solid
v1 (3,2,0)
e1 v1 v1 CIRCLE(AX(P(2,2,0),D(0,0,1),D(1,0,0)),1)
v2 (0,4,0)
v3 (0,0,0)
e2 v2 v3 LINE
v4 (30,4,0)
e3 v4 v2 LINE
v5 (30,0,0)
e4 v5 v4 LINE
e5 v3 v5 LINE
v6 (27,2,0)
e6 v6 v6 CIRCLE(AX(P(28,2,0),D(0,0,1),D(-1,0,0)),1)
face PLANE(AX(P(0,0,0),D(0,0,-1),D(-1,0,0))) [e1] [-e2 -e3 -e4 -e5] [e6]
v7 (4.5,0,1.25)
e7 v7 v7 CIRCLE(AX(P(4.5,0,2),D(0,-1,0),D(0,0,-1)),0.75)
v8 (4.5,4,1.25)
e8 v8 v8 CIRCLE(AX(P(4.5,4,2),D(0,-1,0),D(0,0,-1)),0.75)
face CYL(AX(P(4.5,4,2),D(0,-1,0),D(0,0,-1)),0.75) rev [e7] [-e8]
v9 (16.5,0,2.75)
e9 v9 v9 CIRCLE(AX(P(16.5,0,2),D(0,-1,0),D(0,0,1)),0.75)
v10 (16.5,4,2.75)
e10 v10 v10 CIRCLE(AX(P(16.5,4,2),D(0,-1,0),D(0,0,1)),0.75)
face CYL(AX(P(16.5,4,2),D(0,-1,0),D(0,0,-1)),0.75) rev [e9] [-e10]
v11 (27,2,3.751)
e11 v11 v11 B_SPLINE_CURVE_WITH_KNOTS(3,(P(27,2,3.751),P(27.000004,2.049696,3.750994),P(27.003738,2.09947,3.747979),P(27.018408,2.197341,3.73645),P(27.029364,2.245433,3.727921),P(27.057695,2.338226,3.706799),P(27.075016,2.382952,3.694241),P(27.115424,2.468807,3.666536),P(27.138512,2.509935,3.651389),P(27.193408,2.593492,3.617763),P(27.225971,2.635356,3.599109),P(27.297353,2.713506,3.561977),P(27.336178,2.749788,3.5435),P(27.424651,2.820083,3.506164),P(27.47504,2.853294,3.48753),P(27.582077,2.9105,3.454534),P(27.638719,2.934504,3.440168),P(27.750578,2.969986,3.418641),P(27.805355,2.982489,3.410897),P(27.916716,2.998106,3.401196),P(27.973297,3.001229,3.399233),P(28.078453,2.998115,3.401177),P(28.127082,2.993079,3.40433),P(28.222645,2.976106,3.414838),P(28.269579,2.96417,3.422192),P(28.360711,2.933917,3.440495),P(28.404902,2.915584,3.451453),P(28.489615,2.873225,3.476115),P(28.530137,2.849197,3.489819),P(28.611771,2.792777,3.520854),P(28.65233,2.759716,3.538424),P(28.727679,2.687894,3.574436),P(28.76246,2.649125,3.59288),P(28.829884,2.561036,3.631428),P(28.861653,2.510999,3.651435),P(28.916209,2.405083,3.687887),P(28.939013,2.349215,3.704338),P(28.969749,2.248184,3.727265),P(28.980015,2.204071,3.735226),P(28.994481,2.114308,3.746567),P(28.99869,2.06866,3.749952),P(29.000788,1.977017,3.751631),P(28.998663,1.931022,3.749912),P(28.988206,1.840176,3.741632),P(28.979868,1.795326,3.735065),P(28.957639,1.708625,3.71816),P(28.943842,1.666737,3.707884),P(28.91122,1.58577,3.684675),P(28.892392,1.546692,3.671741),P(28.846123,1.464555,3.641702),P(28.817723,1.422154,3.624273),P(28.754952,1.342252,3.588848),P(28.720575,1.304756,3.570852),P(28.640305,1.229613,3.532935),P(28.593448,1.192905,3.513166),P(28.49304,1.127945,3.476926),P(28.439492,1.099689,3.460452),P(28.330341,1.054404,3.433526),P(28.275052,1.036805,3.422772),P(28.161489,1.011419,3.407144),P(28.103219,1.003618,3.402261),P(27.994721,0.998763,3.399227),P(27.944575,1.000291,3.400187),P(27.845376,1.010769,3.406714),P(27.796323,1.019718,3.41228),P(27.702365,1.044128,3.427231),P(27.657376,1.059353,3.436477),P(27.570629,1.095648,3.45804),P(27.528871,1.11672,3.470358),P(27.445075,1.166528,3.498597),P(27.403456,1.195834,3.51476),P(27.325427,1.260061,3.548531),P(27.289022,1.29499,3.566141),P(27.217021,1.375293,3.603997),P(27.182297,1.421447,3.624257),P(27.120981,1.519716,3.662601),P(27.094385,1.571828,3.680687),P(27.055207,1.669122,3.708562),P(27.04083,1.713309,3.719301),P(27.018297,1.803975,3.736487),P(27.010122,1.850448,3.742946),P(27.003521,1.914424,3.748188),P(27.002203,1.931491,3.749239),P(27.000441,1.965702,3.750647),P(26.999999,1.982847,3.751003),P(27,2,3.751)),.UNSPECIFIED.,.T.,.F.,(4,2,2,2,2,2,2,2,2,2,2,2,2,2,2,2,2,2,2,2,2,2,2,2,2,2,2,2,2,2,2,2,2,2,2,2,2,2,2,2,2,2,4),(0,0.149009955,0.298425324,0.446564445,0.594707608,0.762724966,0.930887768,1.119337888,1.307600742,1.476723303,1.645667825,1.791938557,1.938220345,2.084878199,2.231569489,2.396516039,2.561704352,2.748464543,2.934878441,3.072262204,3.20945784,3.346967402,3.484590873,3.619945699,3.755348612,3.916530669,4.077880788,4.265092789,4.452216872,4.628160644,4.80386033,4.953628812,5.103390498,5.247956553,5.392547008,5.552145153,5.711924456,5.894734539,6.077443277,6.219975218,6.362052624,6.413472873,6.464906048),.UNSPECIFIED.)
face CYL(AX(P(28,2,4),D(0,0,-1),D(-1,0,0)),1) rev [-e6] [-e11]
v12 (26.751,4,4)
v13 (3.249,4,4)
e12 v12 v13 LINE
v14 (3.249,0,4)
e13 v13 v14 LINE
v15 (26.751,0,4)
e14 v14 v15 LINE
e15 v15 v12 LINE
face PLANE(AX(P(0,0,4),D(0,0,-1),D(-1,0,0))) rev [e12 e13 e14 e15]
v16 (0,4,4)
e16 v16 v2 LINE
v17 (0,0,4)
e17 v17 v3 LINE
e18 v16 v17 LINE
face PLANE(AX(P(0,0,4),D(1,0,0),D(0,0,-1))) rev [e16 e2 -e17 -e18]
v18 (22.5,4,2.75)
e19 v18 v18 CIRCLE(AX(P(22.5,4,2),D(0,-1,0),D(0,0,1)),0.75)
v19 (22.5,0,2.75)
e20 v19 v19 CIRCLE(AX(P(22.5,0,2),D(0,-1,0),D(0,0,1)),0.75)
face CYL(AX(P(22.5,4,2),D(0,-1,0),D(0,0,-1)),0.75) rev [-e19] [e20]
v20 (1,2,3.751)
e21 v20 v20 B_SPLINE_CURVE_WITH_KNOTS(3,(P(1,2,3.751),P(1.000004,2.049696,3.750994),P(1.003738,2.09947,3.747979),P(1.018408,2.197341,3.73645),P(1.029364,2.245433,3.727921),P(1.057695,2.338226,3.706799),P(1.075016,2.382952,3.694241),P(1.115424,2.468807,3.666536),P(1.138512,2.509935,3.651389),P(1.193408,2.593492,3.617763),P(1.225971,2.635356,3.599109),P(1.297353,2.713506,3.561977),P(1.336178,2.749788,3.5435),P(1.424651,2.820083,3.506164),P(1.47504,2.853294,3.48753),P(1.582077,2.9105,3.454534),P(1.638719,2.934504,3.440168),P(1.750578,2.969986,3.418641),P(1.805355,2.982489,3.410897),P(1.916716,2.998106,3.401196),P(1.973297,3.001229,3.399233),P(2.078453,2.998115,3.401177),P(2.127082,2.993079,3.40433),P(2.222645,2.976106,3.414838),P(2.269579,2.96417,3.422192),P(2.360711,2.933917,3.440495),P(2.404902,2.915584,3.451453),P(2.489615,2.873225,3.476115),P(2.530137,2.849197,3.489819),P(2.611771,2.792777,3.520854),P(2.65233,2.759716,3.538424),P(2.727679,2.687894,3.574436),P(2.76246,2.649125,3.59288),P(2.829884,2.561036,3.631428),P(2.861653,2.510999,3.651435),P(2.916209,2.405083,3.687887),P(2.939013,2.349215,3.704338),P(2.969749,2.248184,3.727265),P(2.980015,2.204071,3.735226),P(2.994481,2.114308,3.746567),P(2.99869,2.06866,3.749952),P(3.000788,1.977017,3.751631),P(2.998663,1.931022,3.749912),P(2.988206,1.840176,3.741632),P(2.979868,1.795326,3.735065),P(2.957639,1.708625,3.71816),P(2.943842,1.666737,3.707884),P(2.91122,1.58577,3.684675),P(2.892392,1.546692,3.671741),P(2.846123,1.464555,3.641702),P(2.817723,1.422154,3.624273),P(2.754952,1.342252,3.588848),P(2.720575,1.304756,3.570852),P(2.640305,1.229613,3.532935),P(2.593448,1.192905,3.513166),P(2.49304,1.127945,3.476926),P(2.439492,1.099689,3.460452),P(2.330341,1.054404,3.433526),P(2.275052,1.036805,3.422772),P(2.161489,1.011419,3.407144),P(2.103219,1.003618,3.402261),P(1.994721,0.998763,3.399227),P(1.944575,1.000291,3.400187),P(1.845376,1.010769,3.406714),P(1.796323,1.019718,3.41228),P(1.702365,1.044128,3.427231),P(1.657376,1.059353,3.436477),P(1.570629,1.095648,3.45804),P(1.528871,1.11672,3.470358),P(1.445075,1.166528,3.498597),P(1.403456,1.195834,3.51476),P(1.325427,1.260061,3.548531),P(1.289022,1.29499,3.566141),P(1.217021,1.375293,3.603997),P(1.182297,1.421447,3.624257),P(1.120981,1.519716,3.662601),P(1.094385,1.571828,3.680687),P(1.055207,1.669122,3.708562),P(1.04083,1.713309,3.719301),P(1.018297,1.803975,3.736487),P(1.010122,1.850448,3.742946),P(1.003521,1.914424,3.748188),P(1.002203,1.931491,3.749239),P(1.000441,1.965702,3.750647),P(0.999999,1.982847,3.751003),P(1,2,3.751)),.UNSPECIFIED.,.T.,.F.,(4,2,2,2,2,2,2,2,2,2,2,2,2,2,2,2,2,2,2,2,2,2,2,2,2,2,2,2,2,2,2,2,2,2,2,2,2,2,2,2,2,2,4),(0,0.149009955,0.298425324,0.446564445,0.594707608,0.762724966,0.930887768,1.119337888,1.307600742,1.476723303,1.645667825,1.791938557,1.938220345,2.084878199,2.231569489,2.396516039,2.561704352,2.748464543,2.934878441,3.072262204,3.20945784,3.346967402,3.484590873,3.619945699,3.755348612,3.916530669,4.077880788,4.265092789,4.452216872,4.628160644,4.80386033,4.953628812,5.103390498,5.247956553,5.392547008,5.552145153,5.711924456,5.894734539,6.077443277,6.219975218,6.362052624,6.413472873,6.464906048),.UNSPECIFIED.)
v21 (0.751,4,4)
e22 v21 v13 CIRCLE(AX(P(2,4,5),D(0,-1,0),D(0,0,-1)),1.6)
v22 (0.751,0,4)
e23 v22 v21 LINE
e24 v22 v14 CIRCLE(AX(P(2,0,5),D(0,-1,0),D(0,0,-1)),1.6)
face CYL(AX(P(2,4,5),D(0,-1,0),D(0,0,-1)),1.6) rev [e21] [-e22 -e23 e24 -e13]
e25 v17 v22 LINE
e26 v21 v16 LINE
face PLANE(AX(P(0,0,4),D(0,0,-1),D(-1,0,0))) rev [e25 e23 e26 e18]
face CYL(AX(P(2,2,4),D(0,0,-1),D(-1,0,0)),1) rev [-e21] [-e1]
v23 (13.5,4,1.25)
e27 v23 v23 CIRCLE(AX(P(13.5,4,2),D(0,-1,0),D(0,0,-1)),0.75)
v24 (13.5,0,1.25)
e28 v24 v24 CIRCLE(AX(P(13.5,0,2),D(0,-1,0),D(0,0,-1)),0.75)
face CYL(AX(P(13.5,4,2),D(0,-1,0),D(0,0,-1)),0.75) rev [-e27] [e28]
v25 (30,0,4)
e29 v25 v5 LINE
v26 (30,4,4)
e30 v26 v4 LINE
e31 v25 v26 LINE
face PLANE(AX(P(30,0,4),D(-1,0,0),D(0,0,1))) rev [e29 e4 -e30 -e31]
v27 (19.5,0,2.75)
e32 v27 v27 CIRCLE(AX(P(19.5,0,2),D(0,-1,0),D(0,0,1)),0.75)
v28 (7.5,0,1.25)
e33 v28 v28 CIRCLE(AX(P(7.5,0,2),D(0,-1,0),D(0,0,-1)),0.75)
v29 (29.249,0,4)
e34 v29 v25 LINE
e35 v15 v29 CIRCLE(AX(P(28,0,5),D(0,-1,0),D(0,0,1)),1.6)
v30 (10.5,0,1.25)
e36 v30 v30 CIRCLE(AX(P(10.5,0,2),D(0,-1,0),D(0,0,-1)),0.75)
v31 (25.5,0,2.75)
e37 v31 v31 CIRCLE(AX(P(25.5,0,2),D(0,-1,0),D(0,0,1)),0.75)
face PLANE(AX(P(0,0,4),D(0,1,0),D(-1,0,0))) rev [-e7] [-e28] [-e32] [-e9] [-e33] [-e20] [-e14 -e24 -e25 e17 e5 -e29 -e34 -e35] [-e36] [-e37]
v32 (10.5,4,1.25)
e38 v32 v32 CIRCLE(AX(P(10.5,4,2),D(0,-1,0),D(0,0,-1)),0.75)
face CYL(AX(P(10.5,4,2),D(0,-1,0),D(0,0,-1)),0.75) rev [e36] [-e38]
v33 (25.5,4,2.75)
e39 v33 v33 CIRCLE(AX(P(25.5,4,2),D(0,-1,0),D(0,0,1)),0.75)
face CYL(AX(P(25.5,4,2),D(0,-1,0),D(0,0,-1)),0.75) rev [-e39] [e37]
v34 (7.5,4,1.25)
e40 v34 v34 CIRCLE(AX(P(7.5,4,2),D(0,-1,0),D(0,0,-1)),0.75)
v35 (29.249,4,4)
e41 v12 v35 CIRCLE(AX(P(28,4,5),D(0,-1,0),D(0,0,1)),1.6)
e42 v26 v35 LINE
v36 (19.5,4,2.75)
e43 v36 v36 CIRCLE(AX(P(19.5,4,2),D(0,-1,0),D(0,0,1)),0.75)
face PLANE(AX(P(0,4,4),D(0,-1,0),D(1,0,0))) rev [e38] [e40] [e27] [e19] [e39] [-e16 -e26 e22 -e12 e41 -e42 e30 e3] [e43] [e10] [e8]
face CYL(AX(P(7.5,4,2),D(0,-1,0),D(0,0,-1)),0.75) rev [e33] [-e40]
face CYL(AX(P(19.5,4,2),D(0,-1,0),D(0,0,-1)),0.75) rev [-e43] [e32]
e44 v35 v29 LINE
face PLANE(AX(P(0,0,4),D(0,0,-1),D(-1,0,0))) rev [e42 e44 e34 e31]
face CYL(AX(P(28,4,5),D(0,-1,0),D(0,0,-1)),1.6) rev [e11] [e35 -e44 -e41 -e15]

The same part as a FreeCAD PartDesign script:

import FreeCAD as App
import Part
import Sketcher
from FreeCAD import Vector
Q = App.Units.Quantity


def add_polygon(sketch, points):
    """Adds a closed chain of lines whose ends are joined by coincident constraints."""
    first, n = sketch.GeometryCount, len(points)
    for a, b in zip(points, points[1:] + points[:1]):
        sketch.addGeometry(Part.LineSegment(App.Vector(*a, 0), App.Vector(*b, 0)), False)
    for i in range(n):
        sketch.addConstraint(Sketcher.Constraint("Coincident", first + i, 2, first + (i + 1) % n, 1))

doc = App.newDocument("Part")
body = doc.addObject("PartDesign::Body", "Body")

# Sketch on XY plane
sketch1 = body.newObject("Sketcher::SketchObject", "Sketch")
sketch1.AttachmentSupport = (doc.getObject("XY_Plane"), [""])
sketch1.MapMode = "FlatFace"
add_polygon(sketch1, [(0, 4), (0, 0), (30, 0), (30, 4)])  # lines 0-3
sketch1.addGeometry(Part.Circle(Vector(2, 2, 0), Vector(0, 0, 1), 1), False)  # 4
sketch1.addGeometry(Part.Circle(Vector(28, 2, 0), Vector(0, 0, 1), 1), False)  # 5
sketch1.addConstraint([
    Sketcher.Constraint("Vertical", 0),
    Sketcher.Constraint("Horizontal", 1),
    Sketcher.Constraint("Vertical", 2),
    Sketcher.Constraint("Horizontal", 3),
    Sketcher.Constraint("Coincident", 0, 2, -1, 1),
    Sketcher.Constraint("Equal", 4, 5),
    Sketcher.Constraint("Horizontal", 4, 3, 5, 3),
    Sketcher.Constraint("Diameter", 4, Q("2 mm")),
    Sketcher.Constraint("DistanceX", 1, 1, 1, 2, Q("30 mm")),
    Sketcher.Constraint("DistanceY", 0, 2, 0, 1, Q("4 mm")),
    Sketcher.Constraint("DistanceX", -1, 1, 4, 3, Q("2 mm")),
    Sketcher.Constraint("DistanceY", -1, 1, 4, 3, Q("2 mm")),
    Sketcher.Constraint("DistanceX", -1, 1, 5, 3, Q("28 mm")),
])
pad1 = body.newObject("PartDesign::Pad", "Pad")
pad1.Profile = sketch1
pad1.Length = 4

# Sketch on XZ plane
sketch2 = body.newObject("Sketcher::SketchObject", "Sketch001")
sketch2.AttachmentSupport = (doc.getObject("XZ_Plane"), [""])
sketch2.MapMode = "FlatFace"
sketch2.addGeometry([
    Part.Circle(Vector(2, 5, 0), Vector(0, 0, 1), 1.6),  # 0
    Part.Circle(Vector(13.5, 2, 0), Vector(0, 0, 1), 0.75),  # 1
    Part.Circle(Vector(10.5, 2, 0), Vector(0, 0, 1), 0.75),  # 2
    Part.Circle(Vector(7.5, 2, 0), Vector(0, 0, 1), 0.75),  # 3
    Part.Circle(Vector(22.5, 2, 0), Vector(0, 0, 1), 0.75),  # 4
    Part.Circle(Vector(19.5, 2, 0), Vector(0, 0, 1), 0.75),  # 5
    Part.Circle(Vector(16.5, 2, 0), Vector(0, 0, 1), 0.75),  # 6
    Part.Circle(Vector(28, 5, 0), Vector(0, 0, 1), 1.6),  # 7
    Part.Circle(Vector(25.5, 2, 0), Vector(0, 0, 1), 0.75),  # 8
    Part.Circle(Vector(4.5, 2, 0), Vector(0, 0, 1), 0.75),  # 9
], False)
sketch2.addConstraint([
    Sketcher.Constraint("Equal", 1, 2),
    Sketcher.Constraint("Equal", 2, 3),
    Sketcher.Constraint("Equal", 3, 4),
    Sketcher.Constraint("Equal", 4, 5),
    Sketcher.Constraint("Equal", 5, 6),
    Sketcher.Constraint("Equal", 0, 7),
    Sketcher.Constraint("Equal", 6, 8),
    Sketcher.Constraint("Equal", 8, 9),
    Sketcher.Constraint("Horizontal", 1, 3, 2, 3),
    Sketcher.Constraint("Horizontal", 2, 3, 3, 3),
    Sketcher.Constraint("Horizontal", 3, 3, 4, 3),
    Sketcher.Constraint("Horizontal", 4, 3, 5, 3),
    Sketcher.Constraint("Horizontal", 5, 3, 6, 3),
    Sketcher.Constraint("Horizontal", 0, 3, 7, 3),
    Sketcher.Constraint("Horizontal", 6, 3, 8, 3),
    Sketcher.Constraint("Horizontal", 8, 3, 9, 3),
    Sketcher.Constraint("Diameter", 0, Q("3.2 mm")),
    Sketcher.Constraint("Diameter", 1, Q("1.5 mm")),
    Sketcher.Constraint("DistanceX", -1, 1, 0, 3, Q("2 mm")),
    Sketcher.Constraint("DistanceY", -1, 1, 0, 3, Q("5 mm")),
    Sketcher.Constraint("DistanceY", -1, 1, 1, 3, Q("2 mm")),
    Sketcher.Constraint("DistanceX", -1, 1, 7, 3, Q("28 mm")),
    Sketcher.Constraint("DistanceX", 2, 3, 1, 3, Q("3 mm")),
    Sketcher.Constraint("DistanceX", 3, 3, 2, 3, Q("3 mm")),
    Sketcher.Constraint("DistanceX", 1, 3, 4, 3, Q("9 mm")),
    Sketcher.Constraint("DistanceX", 5, 3, 4, 3, Q("3 mm")),
    Sketcher.Constraint("DistanceX", 1, 3, 6, 3, Q("3 mm")),
    Sketcher.Constraint("DistanceX", 4, 3, 8, 3, Q("3 mm")),
    Sketcher.Constraint("DistanceX", 9, 3, 3, 3, Q("3 mm")),
    Sketcher.Constraint("DistanceX", -1, 1, 1, 3, Q("13.5 mm")),
])
pocket1 = body.newObject("PartDesign::Pocket", "Pocket")
pocket1.Profile = sketch2
pocket1.Length = 4

doc.recompute()
